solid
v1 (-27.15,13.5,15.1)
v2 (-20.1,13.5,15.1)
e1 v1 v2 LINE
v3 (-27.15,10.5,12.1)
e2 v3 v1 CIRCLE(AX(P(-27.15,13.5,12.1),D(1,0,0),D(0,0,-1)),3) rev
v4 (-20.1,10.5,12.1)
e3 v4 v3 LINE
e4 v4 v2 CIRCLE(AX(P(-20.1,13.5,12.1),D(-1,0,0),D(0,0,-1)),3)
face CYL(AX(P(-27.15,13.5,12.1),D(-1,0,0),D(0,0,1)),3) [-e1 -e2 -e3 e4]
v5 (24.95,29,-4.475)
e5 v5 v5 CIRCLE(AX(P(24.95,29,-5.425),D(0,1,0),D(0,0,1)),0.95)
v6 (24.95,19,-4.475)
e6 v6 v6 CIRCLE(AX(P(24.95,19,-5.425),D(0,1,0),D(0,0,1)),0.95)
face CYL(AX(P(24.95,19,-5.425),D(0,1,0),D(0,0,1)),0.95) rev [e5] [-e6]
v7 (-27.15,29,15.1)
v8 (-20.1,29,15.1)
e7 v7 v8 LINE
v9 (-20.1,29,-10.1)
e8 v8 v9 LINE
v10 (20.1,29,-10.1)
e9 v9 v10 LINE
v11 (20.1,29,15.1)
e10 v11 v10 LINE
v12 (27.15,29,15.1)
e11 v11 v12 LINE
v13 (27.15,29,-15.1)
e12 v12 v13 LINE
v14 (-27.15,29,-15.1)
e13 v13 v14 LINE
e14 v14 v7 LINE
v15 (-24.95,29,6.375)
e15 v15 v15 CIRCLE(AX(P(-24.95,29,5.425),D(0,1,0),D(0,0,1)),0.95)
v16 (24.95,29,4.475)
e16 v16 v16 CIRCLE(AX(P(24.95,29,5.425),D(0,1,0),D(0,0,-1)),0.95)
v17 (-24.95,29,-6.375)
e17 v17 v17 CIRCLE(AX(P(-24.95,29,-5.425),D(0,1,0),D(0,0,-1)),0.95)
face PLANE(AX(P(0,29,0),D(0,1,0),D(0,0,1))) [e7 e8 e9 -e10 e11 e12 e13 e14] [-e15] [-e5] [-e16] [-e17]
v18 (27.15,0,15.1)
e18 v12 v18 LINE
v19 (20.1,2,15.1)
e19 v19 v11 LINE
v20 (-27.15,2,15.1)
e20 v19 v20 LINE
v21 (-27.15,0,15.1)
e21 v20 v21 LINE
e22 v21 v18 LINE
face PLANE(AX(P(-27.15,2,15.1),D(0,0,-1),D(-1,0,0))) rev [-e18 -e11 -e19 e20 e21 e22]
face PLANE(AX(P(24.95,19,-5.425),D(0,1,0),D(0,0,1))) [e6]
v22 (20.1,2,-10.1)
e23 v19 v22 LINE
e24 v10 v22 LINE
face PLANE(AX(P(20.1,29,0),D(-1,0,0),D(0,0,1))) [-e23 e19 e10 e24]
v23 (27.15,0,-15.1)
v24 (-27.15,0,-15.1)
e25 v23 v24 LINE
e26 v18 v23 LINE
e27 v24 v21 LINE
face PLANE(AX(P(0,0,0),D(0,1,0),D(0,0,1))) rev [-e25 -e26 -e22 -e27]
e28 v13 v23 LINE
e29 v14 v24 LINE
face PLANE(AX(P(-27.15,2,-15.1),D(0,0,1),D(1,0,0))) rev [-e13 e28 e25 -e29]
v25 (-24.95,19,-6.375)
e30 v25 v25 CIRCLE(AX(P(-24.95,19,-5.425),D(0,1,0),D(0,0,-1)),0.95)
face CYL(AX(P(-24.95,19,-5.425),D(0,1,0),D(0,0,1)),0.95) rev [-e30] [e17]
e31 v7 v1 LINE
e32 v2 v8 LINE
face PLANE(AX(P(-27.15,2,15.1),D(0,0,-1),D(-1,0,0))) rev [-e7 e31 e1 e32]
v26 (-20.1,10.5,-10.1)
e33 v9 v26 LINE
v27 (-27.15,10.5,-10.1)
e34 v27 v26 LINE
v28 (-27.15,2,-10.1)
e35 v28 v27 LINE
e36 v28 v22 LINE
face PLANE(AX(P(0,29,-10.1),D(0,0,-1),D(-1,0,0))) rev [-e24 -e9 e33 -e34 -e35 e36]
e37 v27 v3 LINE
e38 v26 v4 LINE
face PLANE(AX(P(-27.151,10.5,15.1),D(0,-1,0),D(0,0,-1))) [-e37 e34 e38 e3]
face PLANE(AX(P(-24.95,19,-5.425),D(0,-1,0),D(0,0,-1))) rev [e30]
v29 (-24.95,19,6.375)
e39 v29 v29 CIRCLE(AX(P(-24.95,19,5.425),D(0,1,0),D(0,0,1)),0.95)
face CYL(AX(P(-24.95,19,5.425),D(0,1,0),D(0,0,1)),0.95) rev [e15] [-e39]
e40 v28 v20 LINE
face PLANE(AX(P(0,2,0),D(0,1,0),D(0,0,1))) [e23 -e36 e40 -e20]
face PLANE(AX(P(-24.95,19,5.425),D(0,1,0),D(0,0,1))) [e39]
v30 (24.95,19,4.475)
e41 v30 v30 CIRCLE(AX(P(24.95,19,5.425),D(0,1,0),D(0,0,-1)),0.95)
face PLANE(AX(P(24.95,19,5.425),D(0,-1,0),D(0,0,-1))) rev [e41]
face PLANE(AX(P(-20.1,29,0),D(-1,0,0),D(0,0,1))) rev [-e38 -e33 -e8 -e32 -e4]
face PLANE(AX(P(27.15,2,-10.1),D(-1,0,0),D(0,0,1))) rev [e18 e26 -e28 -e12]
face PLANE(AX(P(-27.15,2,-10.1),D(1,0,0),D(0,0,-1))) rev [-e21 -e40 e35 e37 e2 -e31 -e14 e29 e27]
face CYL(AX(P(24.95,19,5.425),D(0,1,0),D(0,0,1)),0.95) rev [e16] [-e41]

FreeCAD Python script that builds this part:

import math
import FreeCAD as App
import Part
import Sketcher
from FreeCAD import Vector
Q = App.Units.Quantity


def edges_at(feature, points):
    """Names of the edges that pass closest to the given points."""
    edges = feature.Shape.Edges
    near = lambda p: min(range(len(edges)), key=lambda i: edges[i].distToShape(Part.Vertex(*p))[0])
    return sorted({f"Edge{near(p) + 1}" for p in points})


def add_polygon(sketch, points):
    """Adds a closed chain of lines whose ends are joined by coincident constraints."""
    first, n = sketch.GeometryCount, len(points)
    for a, b in zip(points, points[1:] + points[:1]):
        sketch.addGeometry(Part.LineSegment(App.Vector(*a, 0), App.Vector(*b, 0)), False)
    for i in range(n):
        sketch.addConstraint(Sketcher.Constraint("Coincident", first + i, 2, first + (i + 1) % n, 1))

doc = App.newDocument("Part")
params = doc.addObject("Spreadsheet::Sheet", "Params")
for row, (alias, value) in enumerate([
    ("sketch1_width", "54.3 mm"),
    ("sketch1_height", "30.2 mm"),
    ("pad1_length", "2 mm"),
    ("sketch2_width", "54.3 mm"),
    ("sketch2_width2", "40.2 mm"),
    ("sketch2_height", "30.2 mm"),
    ("sketch2_height2", "20.2 mm"),
    ("pad2_length", "27 mm"),
    ("sketch3_height", "5 mm"),
    ("sketch3_width", "40.2 mm"),
    ("pocket1_length", "27 mm"),
    ("sketch4_width", "8.5 mm"),
    ("sketch4_height", "25.2 mm"),
    ("sketch5_diameter", "1.9 mm"),
    ("pocket3_length", "10 mm"),
    ("fillet_radius", "3 mm"),
    ("sketch6_radius", "3 mm"),
    ("sketch6_width", "8.5 mm"),
    ("sketch6_height", "25.2 mm"),
], start=1):
    params.set(f"A{row}", alias)
    params.set(f"B{row}", "=" + value)
    params.setAlias(f"B{row}", alias)

body = doc.addObject("PartDesign::Body", "Body")

# Sketch on XZ plane
sketch1 = body.newObject("Sketcher::SketchObject", "Sketch")
sketch1.AttachmentSupport = (doc.getObject("XZ_Plane"), [""])
sketch1.MapMode = "FlatFace"
add_polygon(sketch1, [(-27, 15), (27, 15), (27, -15), (-27, -15)])  # lines 0-3
sketch1.addConstraint(Sketcher.Constraint("Horizontal", 0))
sketch1.addConstraint(Sketcher.Constraint("Vertical", 1))
sketch1.addConstraint(Sketcher.Constraint("Horizontal", 2))
sketch1.addConstraint(Sketcher.Constraint("Vertical", 3))
sketch1.addConstraint(Sketcher.Constraint("Symmetric", 0, 2, 2, 2, -1, 1))
sketch1.addConstraint(Sketcher.Constraint("DistanceX", 0, 1, 0, 2, Q("54.3 mm")))
sketch1.addConstraint(Sketcher.Constraint("DistanceY", 1, 2, 1, 1, Q("30.2 mm")))
sketch1.setExpression("Constraints[9]", "Params.sketch1_width")
sketch1.setExpression("Constraints[10]", "Params.sketch1_height")
pad1 = body.newObject("PartDesign::Pad", "Pad")
pad1.Profile = sketch1
pad1.setExpression("Length", "Params.pad1_length")
pad1.Reversed = True

# Sketch on XZ plane
sketch2 = body.newObject("Sketcher::SketchObject", "Sketch001")
sketch2.AttachmentSupport = (doc.getObject("XZ_Plane"), [""])
sketch2.MapMode = "FlatFace"
sketch2.AttachmentOffset = App.Placement(Vector(0, 0, -2), App.Rotation())
add_polygon(sketch2, [(-27, -15), (-27, 15), (27, 15), (27, -15)])  # lines 0-3
add_polygon(sketch2, [(20, 10), (-20, 10), (-20, -10), (20, -10)])  # lines 4-7
sketch2.addConstraint(Sketcher.Constraint("Vertical", 0))
sketch2.addConstraint(Sketcher.Constraint("Horizontal", 1))
sketch2.addConstraint(Sketcher.Constraint("Vertical", 2))
sketch2.addConstraint(Sketcher.Constraint("Horizontal", 3))
sketch2.addConstraint(Sketcher.Constraint("Horizontal", 4))
sketch2.addConstraint(Sketcher.Constraint("Vertical", 5))
sketch2.addConstraint(Sketcher.Constraint("Horizontal", 6))
sketch2.addConstraint(Sketcher.Constraint("Vertical", 7))
sketch2.addConstraint(Sketcher.Constraint("Symmetric", 0, 2, 2, 2, -1, 1))
sketch2.addConstraint(Sketcher.Constraint("Symmetric", 4, 2, 6, 2, -1, 1))
sketch2.addConstraint(Sketcher.Constraint("DistanceX", 1, 1, 1, 2, Q("54.3 mm")))
sketch2.addConstraint(Sketcher.Constraint("DistanceX", 4, 2, 4, 1, Q("40.2 mm")))
sketch2.addConstraint(Sketcher.Constraint("DistanceY", 0, 1, 0, 2, Q("30.2 mm")))
sketch2.addConstraint(Sketcher.Constraint("DistanceY", 5, 2, 5, 1, Q("20.2 mm")))
sketch2.setExpression("Constraints[18]", "Params.sketch2_width")
sketch2.setExpression("Constraints[19]", "Params.sketch2_width2")
sketch2.setExpression("Constraints[20]", "Params.sketch2_height")
sketch2.setExpression("Constraints[21]", "Params.sketch2_height2")
pad2 = body.newObject("PartDesign::Pad", "Pad001")
pad2.Profile = sketch2
pad2.setExpression("Length", "Params.pad2_length")
pad2.Reversed = True

# Sketch on XZ plane
sketch3 = body.newObject("Sketcher::SketchObject", "Sketch002")
sketch3.AttachmentSupport = (doc.getObject("XZ_Plane"), [""])
sketch3.MapMode = "FlatFace"
sketch3.AttachmentOffset = App.Placement(Vector(0, 0, -29), App.Rotation())
add_polygon(sketch3, [(-20, 10), (-20, 15), (20, 15), (20, 10)])  # lines 0-3
sketch3.addConstraint(Sketcher.Constraint("Vertical", 0))
sketch3.addConstraint(Sketcher.Constraint("Horizontal", 1))
sketch3.addConstraint(Sketcher.Constraint("Vertical", 2))
sketch3.addConstraint(Sketcher.Constraint("Horizontal", 3))
sketch3.addConstraint(Sketcher.Constraint("DistanceY", 0, 1, 0, 2, Q("5 mm")))
sketch3.addConstraint(Sketcher.Constraint("DistanceX", 1, 1, 1, 2, Q("40.2 mm")))
sketch3.addConstraint(Sketcher.Constraint("DistanceX", 0, 2, -1, 1, Q("20.1 mm")))
sketch3.addConstraint(Sketcher.Constraint("DistanceY", -1, 1, 0, 2, Q("15.1 mm")))
sketch3.setExpression("Constraints[8]", "Params.sketch3_height")
sketch3.setExpression("Constraints[9]", "Params.sketch3_width")
pocket1 = body.newObject("PartDesign::Pocket", "Pocket")
pocket1.Profile = sketch3
pocket1.setExpression("Length", "Params.pocket1_length")
pocket1.Reversed = True

# Sketch on YZ plane
sketch4 = body.newObject("Sketcher::SketchObject", "Sketch003")
sketch4.AttachmentSupport = (doc.getObject("YZ_Plane"), [""])
sketch4.MapMode = "FlatFace"
sketch4.AttachmentOffset = App.Placement(Vector(0, 0, -22.15), App.Rotation())
add_polygon(sketch4, [(10, 15), (2, 15), (2, -10), (10, -10)])  # lines 0-3
sketch4.addConstraint(Sketcher.Constraint("Horizontal", 0))
sketch4.addConstraint(Sketcher.Constraint("Vertical", 1))
sketch4.addConstraint(Sketcher.Constraint("Horizontal", 2))
sketch4.addConstraint(Sketcher.Constraint("Vertical", 3))
sketch4.addConstraint(Sketcher.Constraint("DistanceX", 0, 2, 0, 1, Q("8.5 mm")))
sketch4.addConstraint(Sketcher.Constraint("DistanceY", 1, 2, 1, 1, Q("25.2 mm")))
sketch4.addConstraint(Sketcher.Constraint("DistanceX", -1, 1, 0, 2, Q("2 mm")))
sketch4.addConstraint(Sketcher.Constraint("DistanceY", -1, 1, 0, 2, Q("15.1 mm")))
sketch4.setExpression("Constraints[8]", "Params.sketch4_width")
sketch4.setExpression("Constraints[9]", "Params.sketch4_height")
pocket2 = body.newObject("PartDesign::Pocket", "Pocket001")
pocket2.Profile = sketch4
pocket2.Type = "UpToFirst"

# Sketch on XZ plane
sketch5 = body.newObject("Sketcher::SketchObject", "Sketch004")
sketch5.AttachmentSupport = (doc.getObject("XZ_Plane"), [""])
sketch5.MapMode = "FlatFace"
sketch5.AttachmentOffset = App.Placement(Vector(0, 0, -29), App.Rotation())
sketch5.addGeometry(Part.Circle(Vector(-24.9, 5.4, 0), Vector(0, 0, 1), 0.9), False)
sketch5.addGeometry(Part.Circle(Vector(-24.9, -5.4, 0), Vector(0, 0, 1), 0.9), False)
sketch5.addGeometry(Part.Circle(Vector(24.9, 5.4, 0), Vector(0, 0, 1), 0.9), False)
sketch5.addGeometry(Part.Circle(Vector(24.9, -5.4, 0), Vector(0, 0, 1), 0.9), False)
sketch5.addConstraint(Sketcher.Constraint("Equal", 0, 1))
sketch5.addConstraint(Sketcher.Constraint("Equal", 1, 2))
sketch5.addConstraint(Sketcher.Constraint("Equal", 2, 3))
sketch5.addConstraint(Sketcher.Constraint("Symmetric", 1, 3, 2, 3, -1, 1))
sketch5.addConstraint(Sketcher.Constraint("Symmetric", 0, 3, 3, 3, -1, 1))
sketch5.addConstraint(Sketcher.Constraint("Symmetric", 0, 3, 2, 3, -2))
sketch5.addConstraint(Sketcher.Constraint("Diameter", 0, Q("1.9 mm")))
sketch5.addConstraint(Sketcher.Constraint("DistanceX", 0, 3, 2, 3, Q("49.9 mm")))
sketch5.addConstraint(Sketcher.Constraint("DistanceY", 1, 3, 0, 3, Q("10.85 mm")))
sketch5.setExpression("Constraints[6]", "Params.sketch5_diameter")
pocket3 = body.newObject("PartDesign::Pocket", "Pocket002")
pocket3.Profile = sketch5
pocket3.setExpression("Length", "Params.pocket3_length")
pocket3.Reversed = True
doc.recompute()

fillet = body.newObject("PartDesign::Fillet", "Fillet")
fillet.Base = (pocket3, edges_at(pocket3, [(-24.65, 10.5, 15.1)]))
fillet.setExpression("Radius", "Params.fillet_radius")

# Sketch on YZ plane
sketch6 = body.newObject("Sketcher::SketchObject", "Sketch005")
sketch6.AttachmentSupport = (doc.getObject("YZ_Plane"), [""])
sketch6.MapMode = "FlatFace"
sketch6.AttachmentOffset = App.Placement(Vector(0, 0, -20.1), App.Rotation())
sketch6.addGeometry(Part.LineSegment(Vector(2, 15.1, 0), Vector(2, -10.1, 0)), False)
sketch6.addGeometry(Part.LineSegment(Vector(2, -10.1, 0), Vector(10.5, -10.1, 0)), False)
sketch6.addGeometry(Part.LineSegment(Vector(10.5, -10.1, 0), Vector(10.5, 12.1, 0)), False)
sketch6.addGeometry(Part.ArcOfCircle(Part.Circle(Vector(13.5, 12.1, 0), Vector(0, 0, 1), 3), math.radians(90), math.radians(180)), False)
sketch6.addGeometry(Part.LineSegment(Vector(13.5, 15.1, 0), Vector(2, 15.1, 0)), False)
sketch6.addConstraint(Sketcher.Constraint("Coincident", 0, 2, 1, 1))
sketch6.addConstraint(Sketcher.Constraint("Coincident", 1, 2, 2, 1))
sketch6.addConstraint(Sketcher.Constraint("Tangent", 2, 2, 3, 2))
sketch6.addConstraint(Sketcher.Constraint("Tangent", 3, 1, 4, 1))
sketch6.addConstraint(Sketcher.Constraint("Coincident", 4, 2, 0, 1))
sketch6.addConstraint(Sketcher.Constraint("Vertical", 0))
sketch6.addConstraint(Sketcher.Constraint("Horizontal", 1))
sketch6.addConstraint(Sketcher.Constraint("Vertical", 2))
sketch6.addConstraint(Sketcher.Constraint("Horizontal", 4))
sketch6.addConstraint(Sketcher.Constraint("Radius", 3, Q("3 mm")))
sketch6.addConstraint(Sketcher.Constraint("DistanceX", 1, 1, 1, 2, Q("8.5 mm")))
sketch6.addConstraint(Sketcher.Constraint("DistanceY", 0, 2, 0, 1, Q("25.2 mm")))
sketch6.addConstraint(Sketcher.Constraint("DistanceX", -1, 1, 0, 2, Q("2 mm")))
sketch6.addConstraint(Sketcher.Constraint("DistanceY", -1, 1, 3, 3, Q("12.1 mm")))
sketch6.setExpression("Constraints[9]", "Params.sketch6_radius")
sketch6.setExpression("Constraints[10]", "Params.sketch6_width")
sketch6.setExpression("Constraints[11]", "Params.sketch6_height")
pocket4 = body.newObject("PartDesign::Pocket", "Pocket003")
pocket4.Profile = sketch6
pocket4.Type = "UpToFirst"

doc.recompute()
